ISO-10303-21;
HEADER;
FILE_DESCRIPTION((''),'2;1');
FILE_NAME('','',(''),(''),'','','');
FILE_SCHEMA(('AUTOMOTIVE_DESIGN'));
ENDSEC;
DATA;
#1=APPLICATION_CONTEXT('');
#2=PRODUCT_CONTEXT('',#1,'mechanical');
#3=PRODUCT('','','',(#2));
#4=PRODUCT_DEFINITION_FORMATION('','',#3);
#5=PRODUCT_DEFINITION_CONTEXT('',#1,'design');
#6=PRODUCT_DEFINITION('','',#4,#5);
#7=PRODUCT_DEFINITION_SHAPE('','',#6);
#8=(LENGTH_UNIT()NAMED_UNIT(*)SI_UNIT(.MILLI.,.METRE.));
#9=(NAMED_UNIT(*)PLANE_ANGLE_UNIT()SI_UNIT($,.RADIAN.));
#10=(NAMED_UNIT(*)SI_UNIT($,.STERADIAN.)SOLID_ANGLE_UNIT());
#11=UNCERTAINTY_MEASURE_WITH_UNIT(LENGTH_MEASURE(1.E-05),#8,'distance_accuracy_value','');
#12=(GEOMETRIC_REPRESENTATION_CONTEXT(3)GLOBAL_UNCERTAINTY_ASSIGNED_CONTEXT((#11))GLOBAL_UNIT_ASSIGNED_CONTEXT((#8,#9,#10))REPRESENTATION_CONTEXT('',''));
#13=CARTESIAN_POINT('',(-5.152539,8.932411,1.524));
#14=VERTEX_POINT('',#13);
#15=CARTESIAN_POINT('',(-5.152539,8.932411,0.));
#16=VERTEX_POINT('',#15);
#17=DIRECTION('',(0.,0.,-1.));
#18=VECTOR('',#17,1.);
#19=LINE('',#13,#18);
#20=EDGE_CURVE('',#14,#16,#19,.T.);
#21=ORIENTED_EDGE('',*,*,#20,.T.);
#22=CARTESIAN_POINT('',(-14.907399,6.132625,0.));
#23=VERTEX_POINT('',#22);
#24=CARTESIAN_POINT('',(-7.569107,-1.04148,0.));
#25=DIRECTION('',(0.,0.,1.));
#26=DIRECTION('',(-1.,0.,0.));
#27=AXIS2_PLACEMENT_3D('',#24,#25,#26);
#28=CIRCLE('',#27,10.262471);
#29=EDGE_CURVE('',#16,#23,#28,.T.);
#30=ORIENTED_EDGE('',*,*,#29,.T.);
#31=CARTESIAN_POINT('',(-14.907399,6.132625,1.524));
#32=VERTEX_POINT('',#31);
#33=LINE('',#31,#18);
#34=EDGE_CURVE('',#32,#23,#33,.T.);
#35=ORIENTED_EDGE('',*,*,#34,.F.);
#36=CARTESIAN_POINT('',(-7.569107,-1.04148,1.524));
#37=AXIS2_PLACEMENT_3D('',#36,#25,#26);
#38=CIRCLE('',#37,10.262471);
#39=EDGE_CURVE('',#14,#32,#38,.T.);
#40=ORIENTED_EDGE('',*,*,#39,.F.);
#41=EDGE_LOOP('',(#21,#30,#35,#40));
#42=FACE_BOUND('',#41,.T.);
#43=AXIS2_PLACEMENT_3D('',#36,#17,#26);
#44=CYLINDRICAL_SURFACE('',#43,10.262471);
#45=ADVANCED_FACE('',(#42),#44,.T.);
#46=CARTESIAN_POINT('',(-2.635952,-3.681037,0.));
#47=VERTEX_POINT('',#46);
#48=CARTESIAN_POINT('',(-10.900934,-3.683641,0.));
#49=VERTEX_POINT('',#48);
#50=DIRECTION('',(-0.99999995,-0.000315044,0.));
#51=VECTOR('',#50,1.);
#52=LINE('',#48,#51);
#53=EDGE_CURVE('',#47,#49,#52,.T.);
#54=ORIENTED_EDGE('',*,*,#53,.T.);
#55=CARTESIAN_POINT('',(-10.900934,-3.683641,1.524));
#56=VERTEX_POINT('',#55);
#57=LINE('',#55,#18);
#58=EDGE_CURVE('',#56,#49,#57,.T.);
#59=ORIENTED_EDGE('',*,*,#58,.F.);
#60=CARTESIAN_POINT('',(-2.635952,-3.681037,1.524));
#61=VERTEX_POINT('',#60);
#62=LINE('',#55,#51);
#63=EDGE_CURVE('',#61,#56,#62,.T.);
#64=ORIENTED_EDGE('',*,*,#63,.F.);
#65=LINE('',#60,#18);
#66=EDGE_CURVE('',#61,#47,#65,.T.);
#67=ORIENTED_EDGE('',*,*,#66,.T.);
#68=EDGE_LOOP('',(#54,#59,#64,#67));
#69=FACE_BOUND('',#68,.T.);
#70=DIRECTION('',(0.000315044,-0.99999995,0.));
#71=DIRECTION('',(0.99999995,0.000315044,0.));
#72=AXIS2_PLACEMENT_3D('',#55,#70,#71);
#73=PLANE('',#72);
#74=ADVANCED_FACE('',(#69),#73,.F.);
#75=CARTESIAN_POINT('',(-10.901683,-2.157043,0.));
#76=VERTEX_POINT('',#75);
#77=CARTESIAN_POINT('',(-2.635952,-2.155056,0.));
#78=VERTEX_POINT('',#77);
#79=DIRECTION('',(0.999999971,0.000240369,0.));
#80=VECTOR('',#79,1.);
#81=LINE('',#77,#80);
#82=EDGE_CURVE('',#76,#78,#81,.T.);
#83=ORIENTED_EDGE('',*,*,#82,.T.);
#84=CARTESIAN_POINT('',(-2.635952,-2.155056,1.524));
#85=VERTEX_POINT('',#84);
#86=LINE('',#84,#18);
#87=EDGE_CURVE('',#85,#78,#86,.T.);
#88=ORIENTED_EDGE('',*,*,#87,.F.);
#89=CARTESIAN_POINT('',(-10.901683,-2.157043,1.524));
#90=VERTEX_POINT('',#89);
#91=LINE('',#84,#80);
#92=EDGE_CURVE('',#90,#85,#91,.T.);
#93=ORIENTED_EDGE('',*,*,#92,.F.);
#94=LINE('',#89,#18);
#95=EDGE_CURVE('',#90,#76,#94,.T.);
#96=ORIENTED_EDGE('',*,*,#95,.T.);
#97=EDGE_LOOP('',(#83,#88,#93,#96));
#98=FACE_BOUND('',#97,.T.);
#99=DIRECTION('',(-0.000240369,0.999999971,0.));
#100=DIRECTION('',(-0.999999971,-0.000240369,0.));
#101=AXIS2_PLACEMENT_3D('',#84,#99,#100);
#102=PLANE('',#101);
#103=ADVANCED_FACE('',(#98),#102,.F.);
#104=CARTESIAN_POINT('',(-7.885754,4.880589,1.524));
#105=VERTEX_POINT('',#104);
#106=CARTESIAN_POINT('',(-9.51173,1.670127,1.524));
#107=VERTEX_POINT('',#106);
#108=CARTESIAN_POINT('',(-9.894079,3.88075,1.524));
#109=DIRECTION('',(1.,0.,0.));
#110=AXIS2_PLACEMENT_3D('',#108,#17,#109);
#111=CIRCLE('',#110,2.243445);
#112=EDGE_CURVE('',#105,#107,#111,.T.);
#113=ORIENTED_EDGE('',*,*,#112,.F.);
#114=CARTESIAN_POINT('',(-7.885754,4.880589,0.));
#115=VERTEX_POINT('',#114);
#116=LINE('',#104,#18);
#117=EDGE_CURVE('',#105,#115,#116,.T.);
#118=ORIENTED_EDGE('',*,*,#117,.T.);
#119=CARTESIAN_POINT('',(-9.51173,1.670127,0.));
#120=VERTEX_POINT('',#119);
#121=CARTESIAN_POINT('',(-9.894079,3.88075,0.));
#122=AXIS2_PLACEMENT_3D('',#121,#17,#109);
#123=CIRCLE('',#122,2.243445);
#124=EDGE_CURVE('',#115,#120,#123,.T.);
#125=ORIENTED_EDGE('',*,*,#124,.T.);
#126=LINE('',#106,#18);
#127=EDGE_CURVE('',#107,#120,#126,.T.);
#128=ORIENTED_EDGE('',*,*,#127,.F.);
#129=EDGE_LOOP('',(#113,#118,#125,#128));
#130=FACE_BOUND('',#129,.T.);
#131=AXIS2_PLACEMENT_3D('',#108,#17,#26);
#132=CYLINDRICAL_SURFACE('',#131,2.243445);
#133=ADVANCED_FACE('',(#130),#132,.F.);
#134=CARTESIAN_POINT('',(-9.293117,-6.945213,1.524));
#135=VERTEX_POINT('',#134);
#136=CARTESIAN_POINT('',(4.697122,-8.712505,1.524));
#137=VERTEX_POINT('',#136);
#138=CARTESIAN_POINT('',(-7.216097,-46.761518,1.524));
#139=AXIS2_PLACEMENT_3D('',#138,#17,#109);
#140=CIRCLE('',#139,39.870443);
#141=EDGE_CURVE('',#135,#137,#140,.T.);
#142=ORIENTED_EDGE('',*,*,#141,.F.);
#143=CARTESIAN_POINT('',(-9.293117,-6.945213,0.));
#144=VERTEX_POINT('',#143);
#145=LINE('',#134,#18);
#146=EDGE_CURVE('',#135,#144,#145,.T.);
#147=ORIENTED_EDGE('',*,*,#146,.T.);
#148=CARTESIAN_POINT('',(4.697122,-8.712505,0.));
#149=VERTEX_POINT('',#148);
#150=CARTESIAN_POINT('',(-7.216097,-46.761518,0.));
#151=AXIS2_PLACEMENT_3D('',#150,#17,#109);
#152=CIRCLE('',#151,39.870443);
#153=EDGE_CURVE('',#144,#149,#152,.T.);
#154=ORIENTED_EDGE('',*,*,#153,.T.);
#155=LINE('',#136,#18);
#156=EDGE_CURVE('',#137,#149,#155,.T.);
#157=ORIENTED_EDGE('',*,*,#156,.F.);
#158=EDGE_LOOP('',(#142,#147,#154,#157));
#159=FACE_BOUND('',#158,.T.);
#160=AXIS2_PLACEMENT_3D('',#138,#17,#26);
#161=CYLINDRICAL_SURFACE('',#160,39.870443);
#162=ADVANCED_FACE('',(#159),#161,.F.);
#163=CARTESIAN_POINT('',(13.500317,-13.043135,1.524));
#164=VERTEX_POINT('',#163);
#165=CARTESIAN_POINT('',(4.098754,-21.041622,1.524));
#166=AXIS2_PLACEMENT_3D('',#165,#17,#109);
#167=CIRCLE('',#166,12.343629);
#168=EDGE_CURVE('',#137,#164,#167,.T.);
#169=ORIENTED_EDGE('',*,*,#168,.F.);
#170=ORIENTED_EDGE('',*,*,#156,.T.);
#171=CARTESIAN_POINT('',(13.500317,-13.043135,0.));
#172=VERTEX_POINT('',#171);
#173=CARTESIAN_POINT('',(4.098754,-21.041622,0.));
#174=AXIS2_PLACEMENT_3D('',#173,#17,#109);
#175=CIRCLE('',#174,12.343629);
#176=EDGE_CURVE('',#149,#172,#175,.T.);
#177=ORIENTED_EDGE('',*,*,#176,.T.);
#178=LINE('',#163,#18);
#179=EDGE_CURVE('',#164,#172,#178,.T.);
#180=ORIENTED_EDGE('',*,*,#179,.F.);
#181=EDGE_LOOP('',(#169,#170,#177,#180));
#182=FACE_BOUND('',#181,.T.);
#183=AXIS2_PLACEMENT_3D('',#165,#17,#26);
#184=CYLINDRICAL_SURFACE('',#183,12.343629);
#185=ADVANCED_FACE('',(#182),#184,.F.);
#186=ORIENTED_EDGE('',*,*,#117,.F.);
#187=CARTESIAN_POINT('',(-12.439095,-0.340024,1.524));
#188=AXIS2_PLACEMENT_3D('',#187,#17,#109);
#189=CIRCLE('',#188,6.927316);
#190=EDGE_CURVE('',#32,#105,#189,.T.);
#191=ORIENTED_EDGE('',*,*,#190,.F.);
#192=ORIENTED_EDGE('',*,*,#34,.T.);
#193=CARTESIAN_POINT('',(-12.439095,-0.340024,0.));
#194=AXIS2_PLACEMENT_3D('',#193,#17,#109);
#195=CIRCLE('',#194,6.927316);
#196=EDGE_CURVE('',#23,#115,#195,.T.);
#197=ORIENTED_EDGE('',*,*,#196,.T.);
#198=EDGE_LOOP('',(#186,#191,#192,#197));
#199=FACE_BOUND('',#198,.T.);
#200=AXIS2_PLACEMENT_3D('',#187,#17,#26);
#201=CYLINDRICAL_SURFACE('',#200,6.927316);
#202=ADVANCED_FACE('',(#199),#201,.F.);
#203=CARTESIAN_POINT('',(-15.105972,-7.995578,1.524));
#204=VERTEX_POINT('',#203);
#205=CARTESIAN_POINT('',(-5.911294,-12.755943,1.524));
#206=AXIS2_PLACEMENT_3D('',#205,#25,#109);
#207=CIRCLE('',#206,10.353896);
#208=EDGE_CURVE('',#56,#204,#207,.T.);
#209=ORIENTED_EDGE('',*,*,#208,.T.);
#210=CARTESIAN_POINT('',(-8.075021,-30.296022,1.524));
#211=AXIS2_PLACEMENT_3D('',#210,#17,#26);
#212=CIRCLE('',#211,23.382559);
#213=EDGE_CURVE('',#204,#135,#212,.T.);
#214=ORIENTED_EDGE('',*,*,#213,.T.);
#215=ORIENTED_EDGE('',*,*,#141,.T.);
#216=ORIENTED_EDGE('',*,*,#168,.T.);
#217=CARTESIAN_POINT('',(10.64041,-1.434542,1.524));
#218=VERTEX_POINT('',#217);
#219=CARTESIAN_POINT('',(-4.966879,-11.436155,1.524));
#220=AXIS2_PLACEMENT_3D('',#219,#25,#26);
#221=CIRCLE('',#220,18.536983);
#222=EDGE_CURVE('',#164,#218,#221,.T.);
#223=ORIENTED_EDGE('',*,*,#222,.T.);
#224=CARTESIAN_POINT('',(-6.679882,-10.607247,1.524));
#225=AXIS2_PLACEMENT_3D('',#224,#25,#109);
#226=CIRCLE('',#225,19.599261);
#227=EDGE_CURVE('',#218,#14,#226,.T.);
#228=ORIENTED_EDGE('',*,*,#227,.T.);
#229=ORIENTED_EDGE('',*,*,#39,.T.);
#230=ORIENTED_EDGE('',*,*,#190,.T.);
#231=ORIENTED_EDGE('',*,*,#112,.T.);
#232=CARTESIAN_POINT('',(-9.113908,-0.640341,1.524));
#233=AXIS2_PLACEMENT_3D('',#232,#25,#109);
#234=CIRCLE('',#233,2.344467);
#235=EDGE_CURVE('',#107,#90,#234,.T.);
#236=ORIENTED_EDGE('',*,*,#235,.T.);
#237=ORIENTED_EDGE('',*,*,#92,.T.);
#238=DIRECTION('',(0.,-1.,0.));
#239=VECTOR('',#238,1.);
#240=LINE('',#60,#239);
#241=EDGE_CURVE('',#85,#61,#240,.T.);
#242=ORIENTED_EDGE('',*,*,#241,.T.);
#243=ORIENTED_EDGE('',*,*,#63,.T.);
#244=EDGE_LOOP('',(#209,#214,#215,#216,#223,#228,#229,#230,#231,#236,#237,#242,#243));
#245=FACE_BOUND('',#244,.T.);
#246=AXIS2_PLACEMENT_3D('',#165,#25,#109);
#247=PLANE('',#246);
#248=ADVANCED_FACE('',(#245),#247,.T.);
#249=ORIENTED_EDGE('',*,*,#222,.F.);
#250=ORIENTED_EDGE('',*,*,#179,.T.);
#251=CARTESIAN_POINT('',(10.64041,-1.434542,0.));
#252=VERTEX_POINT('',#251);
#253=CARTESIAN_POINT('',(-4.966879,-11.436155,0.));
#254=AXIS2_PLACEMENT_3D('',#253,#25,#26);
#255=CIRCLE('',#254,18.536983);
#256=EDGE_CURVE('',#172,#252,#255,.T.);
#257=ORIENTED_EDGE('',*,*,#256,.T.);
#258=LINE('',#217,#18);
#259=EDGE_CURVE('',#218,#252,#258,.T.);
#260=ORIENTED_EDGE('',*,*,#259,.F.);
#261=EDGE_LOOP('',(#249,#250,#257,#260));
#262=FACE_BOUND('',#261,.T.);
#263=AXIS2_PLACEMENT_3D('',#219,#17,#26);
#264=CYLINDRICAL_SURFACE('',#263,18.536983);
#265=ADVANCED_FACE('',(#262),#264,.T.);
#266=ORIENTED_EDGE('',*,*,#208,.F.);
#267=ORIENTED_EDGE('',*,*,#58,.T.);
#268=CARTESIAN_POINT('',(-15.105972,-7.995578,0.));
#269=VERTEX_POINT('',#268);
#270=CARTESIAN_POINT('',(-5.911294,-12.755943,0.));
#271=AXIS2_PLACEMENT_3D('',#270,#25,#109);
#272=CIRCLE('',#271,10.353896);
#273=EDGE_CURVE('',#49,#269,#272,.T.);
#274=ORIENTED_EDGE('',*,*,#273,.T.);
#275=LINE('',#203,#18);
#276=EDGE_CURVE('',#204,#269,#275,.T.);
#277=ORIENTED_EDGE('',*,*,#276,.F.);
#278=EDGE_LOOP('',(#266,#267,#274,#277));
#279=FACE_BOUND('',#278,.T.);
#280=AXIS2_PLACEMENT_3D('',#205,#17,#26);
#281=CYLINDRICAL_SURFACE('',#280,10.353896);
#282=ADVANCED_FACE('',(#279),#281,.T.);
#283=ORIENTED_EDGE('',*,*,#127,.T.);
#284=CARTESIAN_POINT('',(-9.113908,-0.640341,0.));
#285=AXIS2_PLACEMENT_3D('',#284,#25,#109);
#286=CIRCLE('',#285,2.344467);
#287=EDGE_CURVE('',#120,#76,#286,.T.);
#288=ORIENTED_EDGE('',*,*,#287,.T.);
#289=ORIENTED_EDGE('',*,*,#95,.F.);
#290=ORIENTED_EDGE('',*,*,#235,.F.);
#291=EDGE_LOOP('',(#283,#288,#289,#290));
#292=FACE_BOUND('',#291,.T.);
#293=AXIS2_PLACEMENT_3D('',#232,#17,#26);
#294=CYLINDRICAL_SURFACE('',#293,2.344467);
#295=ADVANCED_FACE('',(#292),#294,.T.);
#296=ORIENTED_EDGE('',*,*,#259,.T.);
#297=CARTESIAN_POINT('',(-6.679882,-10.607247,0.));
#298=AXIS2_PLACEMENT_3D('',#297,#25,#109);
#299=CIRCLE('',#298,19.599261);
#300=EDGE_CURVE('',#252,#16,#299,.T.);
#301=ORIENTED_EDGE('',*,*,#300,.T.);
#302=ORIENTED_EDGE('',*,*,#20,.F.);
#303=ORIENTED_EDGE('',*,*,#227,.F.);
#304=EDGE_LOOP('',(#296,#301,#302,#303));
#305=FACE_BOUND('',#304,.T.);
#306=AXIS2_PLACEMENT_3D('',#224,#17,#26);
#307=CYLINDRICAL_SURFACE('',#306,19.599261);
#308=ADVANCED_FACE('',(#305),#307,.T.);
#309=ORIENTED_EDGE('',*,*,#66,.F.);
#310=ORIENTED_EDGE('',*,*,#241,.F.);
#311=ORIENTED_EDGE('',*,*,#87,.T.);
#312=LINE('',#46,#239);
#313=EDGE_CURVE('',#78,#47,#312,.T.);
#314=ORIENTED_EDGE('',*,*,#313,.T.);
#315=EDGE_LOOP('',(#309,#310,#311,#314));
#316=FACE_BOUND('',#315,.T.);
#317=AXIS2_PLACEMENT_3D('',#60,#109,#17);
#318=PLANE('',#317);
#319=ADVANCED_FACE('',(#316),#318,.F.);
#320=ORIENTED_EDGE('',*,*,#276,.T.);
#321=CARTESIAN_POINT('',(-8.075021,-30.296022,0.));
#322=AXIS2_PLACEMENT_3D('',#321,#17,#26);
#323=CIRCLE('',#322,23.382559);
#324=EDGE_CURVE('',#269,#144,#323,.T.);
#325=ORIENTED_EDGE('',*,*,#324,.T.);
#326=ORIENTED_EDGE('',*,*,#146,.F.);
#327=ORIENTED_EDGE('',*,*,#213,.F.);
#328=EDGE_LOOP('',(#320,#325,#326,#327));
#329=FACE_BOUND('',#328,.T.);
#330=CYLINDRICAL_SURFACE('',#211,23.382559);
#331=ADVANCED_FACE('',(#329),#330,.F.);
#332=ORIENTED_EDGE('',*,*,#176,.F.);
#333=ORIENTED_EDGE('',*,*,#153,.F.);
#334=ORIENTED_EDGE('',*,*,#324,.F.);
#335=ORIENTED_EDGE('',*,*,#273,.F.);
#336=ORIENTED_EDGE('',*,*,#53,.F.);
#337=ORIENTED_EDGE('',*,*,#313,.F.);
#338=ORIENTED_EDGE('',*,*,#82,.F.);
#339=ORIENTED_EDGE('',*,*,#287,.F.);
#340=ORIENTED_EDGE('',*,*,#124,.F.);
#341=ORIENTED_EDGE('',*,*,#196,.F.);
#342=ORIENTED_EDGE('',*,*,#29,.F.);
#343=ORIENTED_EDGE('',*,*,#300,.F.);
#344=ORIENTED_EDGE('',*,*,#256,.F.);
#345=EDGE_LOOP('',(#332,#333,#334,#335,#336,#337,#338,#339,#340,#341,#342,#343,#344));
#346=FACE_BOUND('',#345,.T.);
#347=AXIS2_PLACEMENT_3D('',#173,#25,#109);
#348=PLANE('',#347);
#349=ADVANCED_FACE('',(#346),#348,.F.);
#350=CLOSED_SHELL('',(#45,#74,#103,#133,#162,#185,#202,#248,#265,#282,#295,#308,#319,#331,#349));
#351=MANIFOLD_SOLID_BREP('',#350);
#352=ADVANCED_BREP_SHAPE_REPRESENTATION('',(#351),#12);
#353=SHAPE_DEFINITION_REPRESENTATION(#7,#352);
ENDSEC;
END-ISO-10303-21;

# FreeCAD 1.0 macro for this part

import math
import FreeCAD as App
import Part
import Sketcher

V = App.Vector
Q = App.Units.Quantity

doc = App.newDocument("Part")
body = doc.addObject("PartDesign::Body", "Body")

# Sketch on XY plane
sketch1 = body.newObject("Sketcher::SketchObject", "Sketch")
sketch1.AttachmentSupport = (doc.getObject("XY_Plane"), [""])
sketch1.MapMode = "FlatFace"
sketch1.addGeometry([
    Part.LineSegment(V(-2.6, -3.7, 0), V(-10.9, -3.7, 0)),  # 0
    Part.ArcOfCircle(Part.Circle(V(-5.9, -12.8, 0), V(0, 0, 1), 10.4), math.radians(119), math.radians(153)),  # 1
    Part.ArcOfCircle(Part.Circle(V(-8.1, -30.3, 0), V(0, 0, 1), 23.4), math.radians(92.99), math.radians(107.5)),  # 2
    Part.ArcOfCircle(Part.Circle(V(-7.2, -46.8, 0), V(0, 0, 1), 39.9), math.radians(73), math.radians(93)),  # 3
    Part.ArcOfCircle(Part.Circle(V(4.1, -21, 0), V(0, 0, 1), 12.3), math.radians(40), math.radians(87)),  # 4
    Part.ArcOfCircle(Part.Circle(V(-5, -11.4, 0), V(0, 0, 1), 18.5), math.radians(-5), math.radians(33)),  # 5
    Part.ArcOfCircle(Part.Circle(V(-6.7, -10.6, 0), V(0, 0, 1), 19.6), math.radians(28), math.radians(86)),  # 6
    Part.ArcOfCircle(Part.Circle(V(-7.6, -1, 0), V(0, 0, 1), 10.3), math.radians(76), math.radians(136)),  # 7
    Part.ArcOfCircle(Part.Circle(V(-12.4, -0.3, 0), V(0, 0, 1), 6.9), math.radians(49), math.radians(111)),  # 8
    Part.ArcOfCircle(Part.Circle(V(-9.9, 3.9, 0), V(0, 0, 1), 2.2), math.radians(-80), math.radians(26)),  # 9
    Part.ArcOfCircle(Part.Circle(V(-9.1, -0.6, 0), V(0, 0, 1), 2.3), math.radians(100), math.radians(220)),  # 10
    Part.LineSegment(V(-10.9, -2.2, 0), V(-2.6, -2.2, 0)),  # 11
    Part.LineSegment(V(-2.6, -2.2, 0), V(-2.6, -3.7, 0)),  # 12
], False)
sketch1.addConstraint([
    Sketcher.Constraint("Coincident", 0, 2, 1, 1),
    Sketcher.Constraint("Coincident", 1, 2, 2, 2),
    Sketcher.Constraint("Tangent", 2, 1, 3, 2),
    Sketcher.Constraint("Coincident", 3, 1, 4, 2),
    Sketcher.Constraint("Coincident", 4, 1, 5, 1),
    Sketcher.Constraint("Coincident", 5, 2, 6, 1),
    Sketcher.Constraint("Coincident", 6, 2, 7, 1),
    Sketcher.Constraint("Coincident", 7, 2, 8, 2),
    Sketcher.Constraint("Coincident", 8, 1, 9, 2),
    Sketcher.Constraint("Coincident", 9, 1, 10, 1),
    Sketcher.Constraint("Coincident", 10, 2, 11, 1),
    Sketcher.Constraint("Coincident", 11, 2, 12, 1),
    Sketcher.Constraint("Coincident", 12, 2, 0, 1),
    Sketcher.Constraint("Vertical", 12),
    Sketcher.Constraint("Radius", 2, 23.382559),
    Sketcher.Constraint("Radius", 4, 12.343629),
    Sketcher.Constraint("Radius", 6, 19.599261),
    Sketcher.Constraint("Radius", 7, 10.262471),
    Sketcher.Constraint("DistanceX", 8, 3, 1, 3, Q("0.257 in")),
    Sketcher.Constraint("DistanceX", 10, 2, -1, 1, Q("0.4292001 in")),
    Sketcher.Constraint("Radius", 1, 10.353896),
    Sketcher.Constraint("Radius", 3, 39.870443),
    Sketcher.Constraint("Radius", 5, 18.536983),
    Sketcher.Constraint("Radius", 8, 6.927316),
    Sketcher.Constraint("Radius", 9, 2.243445),
    Sketcher.Constraint("Radius", 10, 2.344467),
    Sketcher.Constraint("DistanceX", 0, 2, 2, 1, Q("0.0632999 in")),
    Sketcher.Constraint("DistanceX", 9, 1, 11, 2, Q("0.2706999 in")),
    Sketcher.Constraint("DistanceY", 12, 2, 12, 1, 1.525981),
    Sketcher.Constraint("DistanceX", 7, 2, -1, 1, 14.907399),
    Sketcher.Constraint("DistanceY", 2, 3, 4, 3, 9.254399),
    Sketcher.Constraint("DistanceY", 4, 3, 8, 3, 20.701599),
    Sketcher.Constraint("DistanceX", 9, 3, 5, 3, 4.927199),
    Sketcher.Constraint("DistanceX", 10, 3, 7, 3, 1.5448),
    Sketcher.Constraint("DistanceY", 0, 2, 10, 3, 3.0433),
    Sketcher.Constraint("DistanceY", 1, 2, 7, 3, 6.954098),
    Sketcher.Constraint("DistanceX", 5, 3, 3, 1, 9.664001),
    Sketcher.Constraint("DistanceX", 6, 3, 4, 1, 20.180199),
    Sketcher.Constraint("DistanceY", 0, 2, 10, 2, 1.526598),
    Sketcher.Constraint("Distance", 11, 8.265732),
    Sketcher.Constraint("DistanceX", 2, 3, -1, 1, 8.075021),
    Sketcher.Constraint("DistanceY", 2, 3, -1, 1, 30.296022),
    Sketcher.Constraint("DistanceX", 5, 3, -1, 1, 4.96688),
    Sketcher.Constraint("DistanceY", 7, 3, -1, 1, 1.04148),
    Sketcher.Constraint("DistanceY", -1, 1, 9, 3, 3.88075),
    Sketcher.Constraint("DistanceX", -1, 1, 5, 2, 10.64041),
    Sketcher.Constraint("DistanceX", 6, 2, -1, 1, 5.152539),
    Sketcher.Constraint("DistanceY", 6, 3, 12, 2, 6.92621),
])
pad1 = body.newObject("PartDesign::Pad", "Pad")
pad1.Profile = sketch1
pad1.Length = Q("0.06 in")

doc.recompute()
